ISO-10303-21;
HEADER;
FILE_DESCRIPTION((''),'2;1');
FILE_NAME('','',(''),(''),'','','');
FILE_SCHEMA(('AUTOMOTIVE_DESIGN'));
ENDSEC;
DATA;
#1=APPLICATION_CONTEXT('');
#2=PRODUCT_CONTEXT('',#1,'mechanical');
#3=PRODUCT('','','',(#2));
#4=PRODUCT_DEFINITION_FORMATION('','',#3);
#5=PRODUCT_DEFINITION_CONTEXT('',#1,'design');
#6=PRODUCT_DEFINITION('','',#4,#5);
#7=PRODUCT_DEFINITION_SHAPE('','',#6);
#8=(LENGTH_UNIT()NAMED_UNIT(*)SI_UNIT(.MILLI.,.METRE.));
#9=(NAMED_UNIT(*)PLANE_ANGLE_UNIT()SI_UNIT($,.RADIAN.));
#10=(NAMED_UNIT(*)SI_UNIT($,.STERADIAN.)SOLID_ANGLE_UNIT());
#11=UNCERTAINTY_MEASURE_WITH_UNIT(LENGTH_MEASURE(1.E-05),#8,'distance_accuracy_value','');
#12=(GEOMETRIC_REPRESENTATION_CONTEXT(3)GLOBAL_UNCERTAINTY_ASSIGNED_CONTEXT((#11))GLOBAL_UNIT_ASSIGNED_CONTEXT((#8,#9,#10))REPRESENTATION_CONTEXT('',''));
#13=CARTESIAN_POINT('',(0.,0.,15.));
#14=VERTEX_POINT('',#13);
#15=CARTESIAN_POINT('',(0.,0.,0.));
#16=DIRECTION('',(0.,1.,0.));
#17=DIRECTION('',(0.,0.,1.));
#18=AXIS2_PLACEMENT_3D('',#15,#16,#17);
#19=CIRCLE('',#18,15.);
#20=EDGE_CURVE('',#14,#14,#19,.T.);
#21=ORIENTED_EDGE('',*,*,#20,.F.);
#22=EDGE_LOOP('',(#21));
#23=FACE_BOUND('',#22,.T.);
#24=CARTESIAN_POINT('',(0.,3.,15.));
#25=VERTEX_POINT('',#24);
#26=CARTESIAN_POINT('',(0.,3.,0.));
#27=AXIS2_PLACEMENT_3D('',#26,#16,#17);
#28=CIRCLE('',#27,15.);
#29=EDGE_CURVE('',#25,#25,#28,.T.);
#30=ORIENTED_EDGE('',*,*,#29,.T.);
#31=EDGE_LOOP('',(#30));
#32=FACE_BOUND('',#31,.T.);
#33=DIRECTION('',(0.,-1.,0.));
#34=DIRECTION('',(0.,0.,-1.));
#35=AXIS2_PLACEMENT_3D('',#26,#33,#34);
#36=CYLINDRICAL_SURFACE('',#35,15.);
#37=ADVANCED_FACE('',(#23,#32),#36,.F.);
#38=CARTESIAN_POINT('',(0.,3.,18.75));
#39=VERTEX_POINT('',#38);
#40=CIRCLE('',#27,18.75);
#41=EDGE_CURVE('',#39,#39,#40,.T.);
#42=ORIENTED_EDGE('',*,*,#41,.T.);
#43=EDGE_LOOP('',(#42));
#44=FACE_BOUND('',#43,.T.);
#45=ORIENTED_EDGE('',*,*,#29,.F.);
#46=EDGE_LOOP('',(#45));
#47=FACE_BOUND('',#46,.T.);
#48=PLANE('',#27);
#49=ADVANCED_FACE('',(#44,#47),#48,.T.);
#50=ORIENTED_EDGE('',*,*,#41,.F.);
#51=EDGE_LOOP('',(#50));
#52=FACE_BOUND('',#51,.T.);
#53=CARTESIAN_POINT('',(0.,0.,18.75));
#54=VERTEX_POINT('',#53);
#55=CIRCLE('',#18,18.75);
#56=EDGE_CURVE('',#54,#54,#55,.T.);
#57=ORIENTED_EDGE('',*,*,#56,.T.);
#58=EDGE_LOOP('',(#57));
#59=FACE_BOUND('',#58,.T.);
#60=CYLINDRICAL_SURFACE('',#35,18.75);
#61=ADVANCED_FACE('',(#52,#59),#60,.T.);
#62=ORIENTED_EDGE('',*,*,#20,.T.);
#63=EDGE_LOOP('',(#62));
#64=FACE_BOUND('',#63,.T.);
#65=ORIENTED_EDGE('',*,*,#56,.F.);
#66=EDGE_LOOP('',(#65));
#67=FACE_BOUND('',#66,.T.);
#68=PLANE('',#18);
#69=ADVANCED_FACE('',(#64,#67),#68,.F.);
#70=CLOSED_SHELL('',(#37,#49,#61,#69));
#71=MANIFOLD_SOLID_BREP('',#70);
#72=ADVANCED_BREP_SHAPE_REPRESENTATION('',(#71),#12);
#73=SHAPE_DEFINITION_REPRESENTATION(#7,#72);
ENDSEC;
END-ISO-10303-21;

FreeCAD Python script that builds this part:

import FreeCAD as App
import Part
import Sketcher
from FreeCAD import Vector
Q = App.Units.Quantity

doc = App.newDocument("Part")
body = doc.addObject("PartDesign::Body", "Body")

sketch1 = doc.addObject("Sketcher::SketchObject", "Sketch")
body.addObject(sketch1)
sketch1.AttachmentSupport = (doc.XZ_Plane, [""])
sketch1.MapMode = "FlatFace"
sketch1.addGeometry(Part.Circle(Vector(0, 0, 0), Vector(0, 0, 1), 19), False)
sketch1.addGeometry(Part.Circle(Vector(0, 0, 0), Vector(0, 0, 1), 15), False)
sketch1.addConstraint(Sketcher.Constraint("Coincident", 0, 3, -1, 1))
sketch1.addConstraint(Sketcher.Constraint("Coincident", 1, 3, -1, 1))
sketch1.addConstraint(Sketcher.Constraint("Diameter", 1, Q("30 mm")))
sketch1.addConstraint(Sketcher.Constraint("Diameter", 0, Q("37.5 mm")))
pad1 = doc.addObject("PartDesign::Pad", "Pad")
body.addObject(pad1)
pad1.Profile = sketch1
pad1.Length = 3
pad1.Reversed = True

doc.recompute()
